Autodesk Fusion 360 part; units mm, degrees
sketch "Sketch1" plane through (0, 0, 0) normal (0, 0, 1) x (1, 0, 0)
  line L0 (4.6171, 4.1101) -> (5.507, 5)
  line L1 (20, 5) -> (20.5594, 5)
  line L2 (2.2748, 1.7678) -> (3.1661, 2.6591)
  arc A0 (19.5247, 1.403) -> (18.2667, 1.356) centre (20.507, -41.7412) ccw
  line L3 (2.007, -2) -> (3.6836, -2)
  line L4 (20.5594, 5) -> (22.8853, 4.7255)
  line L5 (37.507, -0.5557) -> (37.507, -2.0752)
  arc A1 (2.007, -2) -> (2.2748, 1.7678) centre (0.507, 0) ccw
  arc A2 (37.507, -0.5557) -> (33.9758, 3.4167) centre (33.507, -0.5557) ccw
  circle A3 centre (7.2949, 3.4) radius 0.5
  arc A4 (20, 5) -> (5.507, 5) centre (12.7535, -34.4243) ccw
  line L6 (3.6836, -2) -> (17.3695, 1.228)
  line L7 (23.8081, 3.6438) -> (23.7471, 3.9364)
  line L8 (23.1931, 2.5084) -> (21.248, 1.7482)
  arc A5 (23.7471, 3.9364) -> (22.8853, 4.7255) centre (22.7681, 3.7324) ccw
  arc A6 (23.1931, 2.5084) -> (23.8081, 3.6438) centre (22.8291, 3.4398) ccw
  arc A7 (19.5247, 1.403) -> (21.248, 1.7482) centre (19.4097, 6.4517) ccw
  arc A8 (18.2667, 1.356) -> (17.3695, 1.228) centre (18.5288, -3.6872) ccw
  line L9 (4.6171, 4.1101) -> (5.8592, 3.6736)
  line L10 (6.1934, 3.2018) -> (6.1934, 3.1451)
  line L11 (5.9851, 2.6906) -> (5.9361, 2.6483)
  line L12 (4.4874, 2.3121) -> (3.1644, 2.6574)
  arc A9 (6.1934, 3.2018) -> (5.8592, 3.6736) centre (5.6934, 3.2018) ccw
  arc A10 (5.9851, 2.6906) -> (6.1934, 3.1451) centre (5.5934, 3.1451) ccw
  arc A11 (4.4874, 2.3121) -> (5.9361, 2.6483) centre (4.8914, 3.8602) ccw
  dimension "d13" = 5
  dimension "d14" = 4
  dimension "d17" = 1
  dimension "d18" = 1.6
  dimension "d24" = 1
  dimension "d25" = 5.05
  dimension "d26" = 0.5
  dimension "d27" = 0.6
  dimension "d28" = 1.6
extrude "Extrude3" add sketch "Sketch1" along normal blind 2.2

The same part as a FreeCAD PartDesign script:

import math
import FreeCAD as App
import Part
import Sketcher
Q = App.Units.Quantity

doc = App.newDocument("Part")
params = doc.addObject("Spreadsheet::Sheet", "Params")
for row, (alias, value) in enumerate([
    ("sketch1_diameter", "1 mm"),
    ("sketch1_radius", "1 mm"),
    ("sketch1_radius2", "1 mm"),
    ("sketch1_radius3", "0.5 mm"),
    ("sketch1_radius4", "0.6 mm"),
    ("pad1_length", "2.2 mm"),
], start=1):
    params.set(f"A{row}", alias)
    params.set(f"B{row}", "=" + value)
    params.setAlias(f"B{row}", alias)

body = doc.addObject("PartDesign::Body", "Body")

# Sketch on XY plane
sketch1 = body.newObject("Sketcher::SketchObject", "Sketch")
sketch1.AttachmentSupport = (doc.getObject("XY_Plane"), [""])
sketch1.MapMode = "FlatFace"
sketch1.addGeometry(Part.LineSegment(App.Vector(5.507, 5, 0), App.Vector(4.6171, 4.1101, 0)), False)
sketch1.addGeometry(Part.LineSegment(App.Vector(4.6171, 4.1101, 0), App.Vector(5.8592, 3.6736, 0)), False)
sketch1.addGeometry(Part.ArcOfCircle(Part.Circle(App.Vector(5.6934, 3.2018, 0), App.Vector(0, 0, 1), 0.5), math.radians(0), math.radians(70.6375)), False)
sketch1.addGeometry(Part.LineSegment(App.Vector(6.1934, 3.2018, 0), App.Vector(6.1934, 3.1451, 0)), False)
sketch1.addGeometry(Part.ArcOfCircle(Part.Circle(App.Vector(5.5934, 3.1451, 0), App.Vector(0, 0, 1), 0.599999), math.radians(-49.244376), math.radians(0)), False)
sketch1.addGeometry(Part.LineSegment(App.Vector(5.9851, 2.6906, 0), App.Vector(5.9361, 2.6483, 0)), False)
sketch1.addGeometry(Part.ArcOfCircle(Part.Circle(App.Vector(4.8914, 3.8602, 0), App.Vector(0, 0, 1), 1.599947), math.radians(-104.625996), math.radians(-49.237517)), False)
sketch1.addGeometry(Part.LineSegment(App.Vector(4.4874, 2.3121, 0), App.Vector(3.1661, 2.6591, 0)), False)
sketch1.addGeometry(Part.LineSegment(App.Vector(3.1661, 2.6591, 0), App.Vector(2.2748, 1.7678, 0)), False)
sketch1.addGeometry(Part.ArcOfCircle(Part.Circle(App.Vector(0.507, 0, 0), App.Vector(0, 0, 1), 2.5), math.radians(-53.130102), math.radians(45)), False)
sketch1.addGeometry(Part.LineSegment(App.Vector(2.007, -2, 0), App.Vector(3.6836, -2, 0)), False)
sketch1.addGeometry(Part.LineSegment(App.Vector(3.6836, -2, 0), App.Vector(17.3695, 1.228, 0)), False)
sketch1.addGeometry(Part.ArcOfCircle(Part.Circle(App.Vector(18.52952, -3.694607, 0), App.Vector(0, 0, 1), 5.05744), math.radians(92.978827), math.radians(103.25992)), False)
sketch1.addGeometry(Part.ArcOfCircle(Part.Circle(App.Vector(20.508122, -41.778521, 0), App.Vector(0, 0, 1), 43.192718), math.radians(91.304637), math.radians(92.974616)), False)
sketch1.addGeometry(Part.ArcOfCircle(Part.Circle(App.Vector(19.409821, 6.450607, 0), App.Vector(0, 0, 1), 5.048915), math.radians(-88.696224), math.radians(-68.649387)), False)
sketch1.addGeometry(Part.LineSegment(App.Vector(21.248, 1.7482, 0), App.Vector(23.1931, 2.5084, 0)), False)
sketch1.addGeometry(Part.ArcOfCircle(Part.Circle(App.Vector(22.8291, 3.4398, 0), App.Vector(0, 0, 1), 1.000001), math.radians(-68.653968), math.radians(11.770626)), False)
sketch1.addGeometry(Part.LineSegment(App.Vector(23.8081, 3.6438, 0), App.Vector(23.7471, 3.9364, 0)), False)
sketch1.addGeometry(Part.ArcOfCircle(Part.Circle(App.Vector(22.7681, 3.7324, 0), App.Vector(0, 0, 1), 1.000028), math.radians(11.770626), math.radians(83.26941)), False)
sketch1.addGeometry(Part.LineSegment(App.Vector(22.8853, 4.7255, 0), App.Vector(20.5594, 5, 0)), False)
sketch1.addGeometry(Part.LineSegment(App.Vector(20.5594, 5, 0), App.Vector(20, 5, 0)), False)
sketch1.addGeometry(Part.ArcOfCircle(Part.Circle(App.Vector(12.7535, -34.4243, 0), App.Vector(0, 0, 1), 40.08475), math.radians(79.584835), math.radians(100.415165)), False)
sketch1.addGeometry(Part.Circle(App.Vector(7.2949, 3.4, 0), App.Vector(0, 0, 1), 0.5), False)
sketch1.addConstraint(Sketcher.Constraint("Coincident", 0, 2, 1, 1))
sketch1.addConstraint(Sketcher.Constraint("Coincident", 1, 2, 2, 2))
sketch1.addConstraint(Sketcher.Constraint("Coincident", 2, 1, 3, 1))
sketch1.addConstraint(Sketcher.Constraint("Coincident", 3, 2, 4, 2))
sketch1.addConstraint(Sketcher.Constraint("Coincident", 4, 1, 5, 1))
sketch1.addConstraint(Sketcher.Constraint("Coincident", 5, 2, 6, 2))
sketch1.addConstraint(Sketcher.Constraint("Coincident", 6, 1, 7, 1))
sketch1.addConstraint(Sketcher.Constraint("Coincident", 7, 2, 8, 1))
sketch1.addConstraint(Sketcher.Constraint("Coincident", 8, 2, 9, 2))
sketch1.addConstraint(Sketcher.Constraint("Coincident", 9, 1, 10, 1))
sketch1.addConstraint(Sketcher.Constraint("Coincident", 10, 2, 11, 1))
sketch1.addConstraint(Sketcher.Constraint("Coincident", 11, 2, 12, 2))
sketch1.addConstraint(Sketcher.Constraint("Coincident", 12, 1, 13, 2))
sketch1.addConstraint(Sketcher.Constraint("Coincident", 13, 1, 14, 1))
sketch1.addConstraint(Sketcher.Constraint("Coincident", 14, 2, 15, 1))
sketch1.addConstraint(Sketcher.Constraint("Coincident", 15, 2, 16, 1))
sketch1.addConstraint(Sketcher.Constraint("Coincident", 16, 2, 17, 1))
sketch1.addConstraint(Sketcher.Constraint("Coincident", 17, 2, 18, 1))
sketch1.addConstraint(Sketcher.Constraint("Coincident", 18, 2, 19, 1))
sketch1.addConstraint(Sketcher.Constraint("Coincident", 19, 2, 20, 1))
sketch1.addConstraint(Sketcher.Constraint("Coincident", 20, 2, 21, 1))
sketch1.addConstraint(Sketcher.Constraint("Coincident", 21, 2, 0, 1))
sketch1.addConstraint(Sketcher.Constraint("Vertical", 3))
sketch1.addConstraint(Sketcher.Constraint("Horizontal", 10))
sketch1.addConstraint(Sketcher.Constraint("Horizontal", 20))
sketch1.addConstraint(Sketcher.Constraint("PointOnObject", 9, 3, -1))
sketch1.addConstraint(Sketcher.Constraint("Diameter", 22, Q("1 mm")))
sketch1.addConstraint(Sketcher.Constraint("Radius", 16, Q("1 mm")))
sketch1.addConstraint(Sketcher.Constraint("Radius", 18, Q("1 mm")))
sketch1.addConstraint(Sketcher.Constraint("Radius", 2, Q("0.5 mm")))
sketch1.addConstraint(Sketcher.Constraint("Radius", 4, Q("0.6 mm")))
sketch1.addConstraint(Sketcher.Constraint("Radius", 6, Q("1.6 mm")))
sketch1.addConstraint(Sketcher.Constraint("Radius", 9, Q("2.5 mm")))
sketch1.addConstraint(Sketcher.Constraint("DistanceY", -1, 1, 19, 2, Q("5 mm")))
sketch1.addConstraint(Sketcher.Constraint("DistanceY", -1, 1, 21, 2, Q("5 mm")))
sketch1.addConstraint(Sketcher.Constraint("DistanceY", 9, 1, -1, 1, Q("2 mm")))
sketch1.addConstraint(Sketcher.Constraint("DistanceX", -1, 1, 20, 2, Q("20 mm")))
sketch1.addConstraint(Sketcher.Constraint("Radius", 14, Q("5.049 mm")))
sketch1.addConstraint(Sketcher.Constraint("DistanceY", -1, 1, 22, 3, Q("3.4 mm")))
sketch1.addConstraint(Sketcher.Constraint("Radius", 12, Q("5.0574 mm")))
sketch1.addConstraint(Sketcher.Constraint("Radius", 13, Q("43.1927 mm")))
sketch1.addConstraint(Sketcher.Constraint("Radius", 21, Q("40.0848 mm")))
sketch1.addConstraint(Sketcher.Constraint("DistanceY", -1, 1, 0, 2, Q("4.11 mm")))
sketch1.addConstraint(Sketcher.Constraint("DistanceX", 4, 3, 21, 3, Q("7.16 mm")))
sketch1.addConstraint(Sketcher.Constraint("DistanceY", 6, 3, 0, 2, Q("0.25 mm")))
sketch1.addConstraint(Sketcher.Constraint("DistanceX", 9, 3, 0, 2, Q("4.11 mm")))
sketch1.addConstraint(Sketcher.Constraint("DistanceX", 11, 2, 12, 3, Q("1.16 mm")))
sketch1.addConstraint(Sketcher.Constraint("DistanceX", 14, 2, 18, 3, Q("1.52 mm")))
sketch1.addConstraint(Sketcher.Constraint("DistanceX", 18, 3, 16, 2, Q("1.04 mm")))
sketch1.addConstraint(Sketcher.Constraint("DistanceX", 0, 2, 21, 2, Q("0.89 mm")))
sketch1.addConstraint(Sketcher.Constraint("Distance", 7, Q("1.366 mm")))
sketch1.addConstraint(Sketcher.Constraint("Distance", 17, Q("0.299 mm")))
sketch1.addConstraint(Sketcher.Constraint("Distance", 19, Q("2.342 mm")))
sketch1.addConstraint(Sketcher.Constraint("DistanceX", 10, 1, 10, 2, Q("1.6766 mm")))
sketch1.addConstraint(Sketcher.Constraint("DistanceX", 20, 2, 20, 1, Q("0.5594 mm")))
sketch1.addConstraint(Sketcher.Constraint("DistanceY", 3, 2, 3, 1, Q("0.0567 mm")))
sketch1.addConstraint(Sketcher.Constraint("DistanceY", -1, 1, 4, 3, Q("3.145 mm")))
sketch1.addConstraint(Sketcher.Constraint("DistanceX", -1, 1, 9, 3, Q("0.507 mm")))
sketch1.addConstraint(Sketcher.Constraint("DistanceX", -1, 1, 16, 3, Q("22.829 mm")))
sketch1.addConstraint(Sketcher.Constraint("DistanceX", -1, 1, 18, 3, Q("22.768 mm")))
sketch1.addConstraint(Sketcher.Constraint("DistanceX", -1, 1, 22, 3, Q("7.295 mm")))
sketch1.addConstraint(Sketcher.Constraint("DistanceY", -1, 1, 3, 2, Q("3.145 mm")))
sketch1.addConstraint(Sketcher.Constraint("DistanceX", -1, 1, 4, 1, Q("5.985 mm")))
sketch1.addConstraint(Sketcher.Constraint("DistanceX", -1, 1, 5, 2, Q("5.936 mm")))
sketch1.addConstraint(Sketcher.Constraint("DistanceY", -1, 1, 6, 1, Q("2.312 mm")))
sketch1.addConstraint(Sketcher.Constraint("DistanceX", -1, 1, 7, 2, Q("3.166 mm")))
sketch1.addConstraint(Sketcher.Constraint("DistanceY", -1, 1, 7, 2, Q("2.659 mm")))
sketch1.addConstraint(Sketcher.Constraint("DistanceY", -1, 1, 11, 2, Q("1.228 mm")))
sketch1.addConstraint(Sketcher.Constraint("DistanceY", -1, 1, 12, 1, Q("1.356 mm")))
sketch1.addConstraint(Sketcher.Constraint("DistanceY", -1, 1, 13, 1, Q("1.403 mm")))
sketch1.addConstraint(Sketcher.Constraint("DistanceX", -1, 1, 15, 2, Q("23.193 mm")))
sketch1.addConstraint(Sketcher.Constraint("DistanceX", -1, 1, 17, 2, Q("23.747 mm")))
sketch1.addConstraint(Sketcher.Constraint("DistanceX", 2, 3, 12, 3, Q("12.836 mm")))
sketch1.addConstraint(Sketcher.Constraint("DistanceY", 13, 3, 12, 3, Q("38.084 mm")))
sketch1.addConstraint(Sketcher.Constraint("DistanceY", 2, 3, 16, 3, Q("0.238 mm")))
sketch1.addConstraint(Sketcher.Constraint("DistanceY", 12, 3, 18, 3, Q("7.427 mm")))
sketch1.addConstraint(Sketcher.Constraint("DistanceX", 22, 3, 14, 3, Q("12.115 mm")))
sketch1.addConstraint(Sketcher.Constraint("DistanceX", 0, 2, 1, 2, Q("1.242 mm")))
sketch1.addConstraint(Sketcher.Constraint("DistanceX", -1, 1, 8, 2, Q("2.2748 mm")))
sketch1.setExpression("Constraints[26]", "Params.sketch1_diameter")
sketch1.setExpression("Constraints[27]", "Params.sketch1_radius")
sketch1.setExpression("Constraints[28]", "Params.sketch1_radius2")
sketch1.setExpression("Constraints[29]", "Params.sketch1_radius3")
sketch1.setExpression("Constraints[30]", "Params.sketch1_radius4")
pad1 = body.newObject("PartDesign::Pad", "Pad")
pad1.Profile = sketch1
pad1.setExpression("Length", "Params.pad1_length")

doc.recompute()
